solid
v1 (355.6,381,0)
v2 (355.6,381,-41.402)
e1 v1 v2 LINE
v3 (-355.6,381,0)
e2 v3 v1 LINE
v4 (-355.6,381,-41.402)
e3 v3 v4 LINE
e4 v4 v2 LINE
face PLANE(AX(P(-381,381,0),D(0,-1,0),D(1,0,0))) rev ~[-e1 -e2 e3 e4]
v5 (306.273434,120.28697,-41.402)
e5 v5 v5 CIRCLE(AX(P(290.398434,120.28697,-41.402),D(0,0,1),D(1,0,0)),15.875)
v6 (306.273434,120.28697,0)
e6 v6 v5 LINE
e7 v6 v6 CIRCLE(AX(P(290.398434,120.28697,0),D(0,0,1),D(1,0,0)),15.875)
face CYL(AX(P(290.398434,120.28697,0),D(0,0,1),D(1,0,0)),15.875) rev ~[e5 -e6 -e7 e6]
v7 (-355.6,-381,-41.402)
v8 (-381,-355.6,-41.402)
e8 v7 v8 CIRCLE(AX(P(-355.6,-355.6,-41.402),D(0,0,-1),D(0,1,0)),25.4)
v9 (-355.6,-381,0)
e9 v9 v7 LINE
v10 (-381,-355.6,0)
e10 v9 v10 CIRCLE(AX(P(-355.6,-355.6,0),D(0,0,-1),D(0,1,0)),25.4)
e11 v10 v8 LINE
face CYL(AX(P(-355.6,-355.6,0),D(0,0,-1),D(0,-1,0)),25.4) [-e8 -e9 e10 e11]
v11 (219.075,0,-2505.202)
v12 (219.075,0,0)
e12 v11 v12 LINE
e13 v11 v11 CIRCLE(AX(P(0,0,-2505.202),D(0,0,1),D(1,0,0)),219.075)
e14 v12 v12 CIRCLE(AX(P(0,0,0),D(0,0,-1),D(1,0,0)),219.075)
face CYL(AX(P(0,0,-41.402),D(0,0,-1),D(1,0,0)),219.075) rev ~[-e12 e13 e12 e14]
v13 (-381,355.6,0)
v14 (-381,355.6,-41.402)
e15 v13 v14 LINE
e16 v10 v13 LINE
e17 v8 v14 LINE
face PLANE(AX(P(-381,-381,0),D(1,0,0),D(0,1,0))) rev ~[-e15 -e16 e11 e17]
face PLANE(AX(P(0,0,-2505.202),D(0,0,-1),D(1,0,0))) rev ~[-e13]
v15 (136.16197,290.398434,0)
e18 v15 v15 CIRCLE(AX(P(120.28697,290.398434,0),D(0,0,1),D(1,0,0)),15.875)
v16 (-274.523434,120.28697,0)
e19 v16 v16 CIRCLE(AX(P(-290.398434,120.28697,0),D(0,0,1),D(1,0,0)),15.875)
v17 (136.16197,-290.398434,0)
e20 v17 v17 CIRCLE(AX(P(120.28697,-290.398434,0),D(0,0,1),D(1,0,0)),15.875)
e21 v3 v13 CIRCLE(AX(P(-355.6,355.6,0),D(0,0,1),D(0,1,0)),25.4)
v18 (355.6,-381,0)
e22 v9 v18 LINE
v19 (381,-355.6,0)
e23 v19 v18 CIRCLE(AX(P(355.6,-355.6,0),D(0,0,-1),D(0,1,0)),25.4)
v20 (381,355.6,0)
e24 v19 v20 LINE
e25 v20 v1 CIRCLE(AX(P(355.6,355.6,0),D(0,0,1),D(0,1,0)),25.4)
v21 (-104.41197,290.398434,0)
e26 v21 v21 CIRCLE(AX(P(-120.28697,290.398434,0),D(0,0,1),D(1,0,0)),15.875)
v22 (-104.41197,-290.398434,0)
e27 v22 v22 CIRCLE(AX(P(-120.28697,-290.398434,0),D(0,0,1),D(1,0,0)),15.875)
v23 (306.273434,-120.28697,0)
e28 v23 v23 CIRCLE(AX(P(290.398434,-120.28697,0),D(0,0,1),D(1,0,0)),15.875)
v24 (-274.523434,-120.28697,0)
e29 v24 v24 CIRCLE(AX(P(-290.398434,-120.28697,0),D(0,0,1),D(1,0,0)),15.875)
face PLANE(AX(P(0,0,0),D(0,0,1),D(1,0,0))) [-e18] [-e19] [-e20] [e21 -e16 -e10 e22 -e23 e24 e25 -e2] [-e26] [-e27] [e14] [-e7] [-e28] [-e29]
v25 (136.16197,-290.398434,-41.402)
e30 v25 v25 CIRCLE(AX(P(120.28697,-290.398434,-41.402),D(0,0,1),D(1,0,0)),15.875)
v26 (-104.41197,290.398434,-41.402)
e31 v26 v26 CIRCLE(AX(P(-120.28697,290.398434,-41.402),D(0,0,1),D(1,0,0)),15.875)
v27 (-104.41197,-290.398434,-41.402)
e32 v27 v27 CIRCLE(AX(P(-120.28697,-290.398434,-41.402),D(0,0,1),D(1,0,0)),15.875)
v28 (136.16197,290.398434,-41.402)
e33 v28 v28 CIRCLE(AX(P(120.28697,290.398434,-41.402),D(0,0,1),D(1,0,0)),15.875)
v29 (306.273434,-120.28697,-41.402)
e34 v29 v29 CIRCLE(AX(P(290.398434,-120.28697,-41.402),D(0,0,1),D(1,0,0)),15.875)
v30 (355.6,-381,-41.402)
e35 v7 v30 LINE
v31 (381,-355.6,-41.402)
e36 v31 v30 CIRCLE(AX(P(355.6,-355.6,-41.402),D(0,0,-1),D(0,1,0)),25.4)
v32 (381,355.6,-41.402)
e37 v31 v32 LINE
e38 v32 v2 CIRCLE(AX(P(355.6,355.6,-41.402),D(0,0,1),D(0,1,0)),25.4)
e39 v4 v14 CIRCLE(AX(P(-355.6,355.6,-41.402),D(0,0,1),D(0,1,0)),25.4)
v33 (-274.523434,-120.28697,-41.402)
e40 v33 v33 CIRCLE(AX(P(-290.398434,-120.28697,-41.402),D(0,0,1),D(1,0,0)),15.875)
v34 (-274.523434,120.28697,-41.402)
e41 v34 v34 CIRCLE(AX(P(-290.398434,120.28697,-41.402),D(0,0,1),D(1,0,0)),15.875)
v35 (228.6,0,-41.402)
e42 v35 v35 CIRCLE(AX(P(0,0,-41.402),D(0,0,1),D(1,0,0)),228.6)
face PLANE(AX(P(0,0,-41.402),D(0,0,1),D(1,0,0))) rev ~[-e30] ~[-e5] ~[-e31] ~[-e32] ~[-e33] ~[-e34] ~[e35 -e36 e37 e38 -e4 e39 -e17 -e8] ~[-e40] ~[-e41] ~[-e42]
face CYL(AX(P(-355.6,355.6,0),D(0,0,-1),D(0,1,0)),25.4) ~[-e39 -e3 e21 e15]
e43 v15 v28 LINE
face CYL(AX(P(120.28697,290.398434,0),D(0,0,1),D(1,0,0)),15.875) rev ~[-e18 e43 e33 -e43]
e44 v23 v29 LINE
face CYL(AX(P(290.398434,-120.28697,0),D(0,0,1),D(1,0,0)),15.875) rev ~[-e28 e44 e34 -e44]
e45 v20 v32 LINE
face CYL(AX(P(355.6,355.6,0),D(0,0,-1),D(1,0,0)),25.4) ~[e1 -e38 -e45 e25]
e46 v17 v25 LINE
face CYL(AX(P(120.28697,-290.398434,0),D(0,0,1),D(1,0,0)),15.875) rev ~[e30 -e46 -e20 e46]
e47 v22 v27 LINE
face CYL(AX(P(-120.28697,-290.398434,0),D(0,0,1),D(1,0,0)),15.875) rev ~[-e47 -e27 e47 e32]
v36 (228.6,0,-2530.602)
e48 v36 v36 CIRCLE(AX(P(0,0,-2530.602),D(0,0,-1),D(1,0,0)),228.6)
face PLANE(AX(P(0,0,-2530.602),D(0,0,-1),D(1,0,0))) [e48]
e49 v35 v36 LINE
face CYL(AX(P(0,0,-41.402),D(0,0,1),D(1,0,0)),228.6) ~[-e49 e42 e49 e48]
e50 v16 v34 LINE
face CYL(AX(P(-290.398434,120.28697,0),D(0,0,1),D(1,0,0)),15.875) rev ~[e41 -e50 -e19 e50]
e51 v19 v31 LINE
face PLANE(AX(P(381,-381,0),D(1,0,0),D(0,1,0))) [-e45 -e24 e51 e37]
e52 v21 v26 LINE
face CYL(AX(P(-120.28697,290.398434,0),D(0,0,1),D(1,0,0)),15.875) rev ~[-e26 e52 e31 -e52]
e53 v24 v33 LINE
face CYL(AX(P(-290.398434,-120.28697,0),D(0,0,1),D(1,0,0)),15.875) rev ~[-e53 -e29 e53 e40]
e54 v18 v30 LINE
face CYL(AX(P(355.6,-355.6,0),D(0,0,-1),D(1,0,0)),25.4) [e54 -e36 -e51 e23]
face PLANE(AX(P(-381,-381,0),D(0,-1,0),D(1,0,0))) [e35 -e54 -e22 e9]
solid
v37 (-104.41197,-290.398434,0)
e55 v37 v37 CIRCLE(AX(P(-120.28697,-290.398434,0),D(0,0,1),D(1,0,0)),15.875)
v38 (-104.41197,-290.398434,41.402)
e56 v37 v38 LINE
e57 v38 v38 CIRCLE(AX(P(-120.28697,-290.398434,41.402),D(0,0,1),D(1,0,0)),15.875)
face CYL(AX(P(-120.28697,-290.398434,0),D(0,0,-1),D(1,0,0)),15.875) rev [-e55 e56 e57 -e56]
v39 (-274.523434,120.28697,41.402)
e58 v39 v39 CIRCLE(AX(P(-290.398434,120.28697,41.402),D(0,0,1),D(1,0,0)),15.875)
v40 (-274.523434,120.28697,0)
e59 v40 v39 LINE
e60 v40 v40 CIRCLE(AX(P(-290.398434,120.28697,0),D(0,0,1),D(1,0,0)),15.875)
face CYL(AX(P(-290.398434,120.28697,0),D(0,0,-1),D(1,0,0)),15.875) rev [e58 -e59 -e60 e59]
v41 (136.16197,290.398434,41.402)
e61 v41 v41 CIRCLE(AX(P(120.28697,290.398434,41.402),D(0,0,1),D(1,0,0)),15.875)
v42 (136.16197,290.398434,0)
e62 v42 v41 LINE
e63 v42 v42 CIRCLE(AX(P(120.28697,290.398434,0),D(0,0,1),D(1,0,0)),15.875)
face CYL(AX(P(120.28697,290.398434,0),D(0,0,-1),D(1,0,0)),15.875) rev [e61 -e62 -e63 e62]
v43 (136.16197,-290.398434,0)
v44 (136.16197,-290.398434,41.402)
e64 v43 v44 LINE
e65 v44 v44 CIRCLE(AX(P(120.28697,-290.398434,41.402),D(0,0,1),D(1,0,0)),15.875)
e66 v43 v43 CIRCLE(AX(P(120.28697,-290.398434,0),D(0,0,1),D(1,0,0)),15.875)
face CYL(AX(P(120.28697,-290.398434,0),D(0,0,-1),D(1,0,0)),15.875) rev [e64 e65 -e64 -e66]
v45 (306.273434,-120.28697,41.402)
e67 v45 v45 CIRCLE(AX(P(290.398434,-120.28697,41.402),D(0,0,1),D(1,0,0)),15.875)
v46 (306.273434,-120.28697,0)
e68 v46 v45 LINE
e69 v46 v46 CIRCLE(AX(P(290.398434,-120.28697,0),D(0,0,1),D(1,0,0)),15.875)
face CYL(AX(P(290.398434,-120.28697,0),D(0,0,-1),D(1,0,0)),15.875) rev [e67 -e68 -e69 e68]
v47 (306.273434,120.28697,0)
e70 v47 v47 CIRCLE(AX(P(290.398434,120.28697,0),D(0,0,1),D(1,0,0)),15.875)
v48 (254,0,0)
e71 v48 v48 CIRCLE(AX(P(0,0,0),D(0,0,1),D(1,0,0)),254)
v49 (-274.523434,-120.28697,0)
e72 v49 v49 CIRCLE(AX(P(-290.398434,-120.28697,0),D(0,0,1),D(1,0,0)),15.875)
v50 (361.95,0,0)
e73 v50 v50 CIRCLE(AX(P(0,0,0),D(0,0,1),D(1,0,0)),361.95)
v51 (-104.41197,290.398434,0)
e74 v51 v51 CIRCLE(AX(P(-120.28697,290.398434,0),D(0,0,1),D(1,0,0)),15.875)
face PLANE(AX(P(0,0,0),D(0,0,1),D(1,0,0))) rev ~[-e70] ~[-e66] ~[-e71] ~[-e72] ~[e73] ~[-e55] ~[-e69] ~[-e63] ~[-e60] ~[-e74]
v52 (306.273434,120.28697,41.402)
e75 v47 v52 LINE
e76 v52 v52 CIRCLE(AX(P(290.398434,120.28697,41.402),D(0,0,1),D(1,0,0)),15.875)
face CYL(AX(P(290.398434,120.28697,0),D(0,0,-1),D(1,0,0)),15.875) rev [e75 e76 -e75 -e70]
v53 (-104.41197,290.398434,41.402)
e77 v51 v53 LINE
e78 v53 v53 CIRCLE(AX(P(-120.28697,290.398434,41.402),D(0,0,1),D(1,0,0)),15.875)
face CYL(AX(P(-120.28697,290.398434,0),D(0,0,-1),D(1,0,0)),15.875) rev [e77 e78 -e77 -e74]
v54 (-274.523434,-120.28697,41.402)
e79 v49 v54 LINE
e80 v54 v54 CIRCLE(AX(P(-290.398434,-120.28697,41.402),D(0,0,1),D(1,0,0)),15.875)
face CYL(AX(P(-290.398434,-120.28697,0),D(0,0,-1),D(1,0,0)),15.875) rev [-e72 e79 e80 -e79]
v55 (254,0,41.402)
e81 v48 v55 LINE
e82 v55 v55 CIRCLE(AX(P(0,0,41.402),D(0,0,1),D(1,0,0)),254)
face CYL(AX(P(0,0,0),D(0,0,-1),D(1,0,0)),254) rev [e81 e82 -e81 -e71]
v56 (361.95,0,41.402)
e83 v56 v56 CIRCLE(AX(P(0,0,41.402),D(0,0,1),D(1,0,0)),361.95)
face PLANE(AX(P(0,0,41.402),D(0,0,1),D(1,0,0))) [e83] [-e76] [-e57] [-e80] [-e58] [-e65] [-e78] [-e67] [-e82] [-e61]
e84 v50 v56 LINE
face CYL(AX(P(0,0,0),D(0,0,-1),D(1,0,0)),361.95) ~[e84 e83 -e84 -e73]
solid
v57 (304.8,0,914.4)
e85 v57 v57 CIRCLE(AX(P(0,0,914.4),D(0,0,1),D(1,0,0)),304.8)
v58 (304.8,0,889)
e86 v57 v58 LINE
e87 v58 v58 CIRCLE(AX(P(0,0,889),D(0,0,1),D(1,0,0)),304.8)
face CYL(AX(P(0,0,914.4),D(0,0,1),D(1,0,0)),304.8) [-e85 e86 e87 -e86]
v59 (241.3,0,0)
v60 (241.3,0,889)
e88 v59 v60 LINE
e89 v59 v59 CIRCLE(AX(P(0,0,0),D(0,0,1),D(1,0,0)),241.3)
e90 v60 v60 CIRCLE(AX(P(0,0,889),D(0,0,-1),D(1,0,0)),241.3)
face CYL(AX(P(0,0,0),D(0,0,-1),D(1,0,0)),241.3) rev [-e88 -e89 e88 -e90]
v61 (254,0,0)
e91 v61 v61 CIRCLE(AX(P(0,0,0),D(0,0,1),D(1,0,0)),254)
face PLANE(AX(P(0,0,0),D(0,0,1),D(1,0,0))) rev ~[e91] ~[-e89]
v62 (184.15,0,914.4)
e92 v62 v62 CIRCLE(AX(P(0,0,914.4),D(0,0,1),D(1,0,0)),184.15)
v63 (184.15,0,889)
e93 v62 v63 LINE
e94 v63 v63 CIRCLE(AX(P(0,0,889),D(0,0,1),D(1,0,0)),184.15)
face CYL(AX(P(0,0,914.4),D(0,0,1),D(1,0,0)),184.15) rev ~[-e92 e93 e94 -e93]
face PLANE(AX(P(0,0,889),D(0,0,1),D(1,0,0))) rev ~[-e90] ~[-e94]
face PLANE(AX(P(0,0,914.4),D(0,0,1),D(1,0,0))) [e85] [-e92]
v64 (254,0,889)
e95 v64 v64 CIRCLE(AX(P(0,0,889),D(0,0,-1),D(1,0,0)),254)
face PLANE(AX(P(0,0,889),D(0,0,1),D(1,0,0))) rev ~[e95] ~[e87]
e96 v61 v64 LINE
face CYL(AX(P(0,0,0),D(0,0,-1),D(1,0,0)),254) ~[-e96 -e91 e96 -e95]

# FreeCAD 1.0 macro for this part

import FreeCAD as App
import Part
import Sketcher

V = App.Vector
Q = App.Units.Quantity


def edges_at(feature, points):
    """Names of the edges that pass closest to the given points."""
    edges = feature.Shape.Edges
    near = lambda p: min(range(len(edges)), key=lambda i: edges[i].distToShape(Part.Vertex(*p))[0])
    return sorted({f"Edge{near(p) + 1}" for p in points})

doc = App.newDocument("Part")
body = doc.addObject("PartDesign::Body", "Body")

# Sketch on XY plane
sketch1 = body.newObject("Sketcher::SketchObject", "Sketch")
sketch1.AttachmentSupport = (doc.getObject("XY_Plane"), [""])
sketch1.MapMode = "FlatFace"
sketch1.addGeometry([
    Part.LineSegment(V(-381, 381, 0), V(-381, -381, 0)),  # 0
    Part.LineSegment(V(-381, -381, 0), V(381, -381, 0)),  # 1
    Part.LineSegment(V(381, -381, 0), V(381, 381, 0)),  # 2
    Part.LineSegment(V(381, 381, 0), V(-381, 381, 0)),  # 3
    Part.Circle(V(-120.28697, -290.398434, 0), V(0, 0, 1), 15.875),  # 4
    Part.Circle(V(-290.398434, -120.28697, 0), V(0, 0, 1), 15.875),  # 5
    Part.Circle(V(120.28697, -290.398434, 0), V(0, 0, 1), 15.875),  # 6
    Part.Circle(V(290.398434, -120.28697, 0), V(0, 0, 1), 15.875),  # 7
    Part.Circle(V(-290.398434, 120.28697, 0), V(0, 0, 1), 15.875),  # 8
    Part.Circle(V(-120.28697, 290.398434, 0), V(0, 0, 1), 15.875),  # 9
    Part.Circle(V(0, 0, 0), V(0, 0, 1), 228.6),  # 10
    Part.Circle(V(290.398434, 120.28697, 0), V(0, 0, 1), 15.875),  # 11
    Part.Circle(V(120.28697, 290.398434, 0), V(0, 0, 1), 15.875),  # 12
], False)
sketch1.addConstraint([
    Sketcher.Constraint("Coincident", 0, 2, 1, 1),
    Sketcher.Constraint("Coincident", 1, 2, 2, 1),
    Sketcher.Constraint("Coincident", 2, 2, 3, 1),
    Sketcher.Constraint("Coincident", 3, 2, 0, 1),
    Sketcher.Constraint("Vertical", 0),
    Sketcher.Constraint("Horizontal", 1),
    Sketcher.Constraint("Vertical", 2),
    Sketcher.Constraint("Horizontal", 3),
    Sketcher.Constraint("Coincident", 10, 3, -1, 1),
    Sketcher.Constraint("Equal", 4, 5),
    Sketcher.Constraint("Equal", 5, 6),
    Sketcher.Constraint("Equal", 6, 7),
    Sketcher.Constraint("Equal", 7, 8),
    Sketcher.Constraint("Equal", 8, 9),
    Sketcher.Constraint("Equal", 9, 11),
    Sketcher.Constraint("Equal", 11, 12),
    Sketcher.Constraint("Symmetric", 7, 3, 8, 3, -1, 1),
    Sketcher.Constraint("Symmetric", 6, 3, 9, 3, -1, 1),
    Sketcher.Constraint("Symmetric", 5, 3, 11, 3, -1, 1),
    Sketcher.Constraint("Symmetric", 4, 3, 12, 3, -1, 1),
    Sketcher.Constraint("Symmetric", 0, 2, 2, 2, -1, 1),
    Sketcher.Constraint("Symmetric", 4, 3, 6, 3, -2),
    Sketcher.Constraint("Symmetric", 5, 3, 7, 3, -2),
    Sketcher.Constraint("Equal", 3, 0),
    Sketcher.Constraint("Diameter", 10, Q("18 in")),
    Sketcher.Constraint("Diameter", 4, Q("1.25 in")),
    Sketcher.Constraint("DistanceX", 1, 1, 1, 2, Q("30 in")),
    Sketcher.Constraint("DistanceX", 4, 3, -1, 1, Q("120.28697 mm")),
    Sketcher.Constraint("DistanceY", 5, 3, -1, 1, Q("120.28697 mm")),
    Sketcher.Constraint("DistanceX", 5, 3, 7, 3, Q("580.796868 mm")),
    Sketcher.Constraint("DistanceY", 4, 3, 9, 3, Q("580.796868 mm")),
])
pad1 = body.newObject("PartDesign::Pad", "Pad")
pad1.Profile = sketch1
pad1.Length = Q("1.63 in")
pad1.Reversed = True

# Sketch on XY plane
sketch2 = body.newObject("Sketcher::SketchObject", "Sketch001")
sketch2.AttachmentSupport = (doc.getObject("XY_Plane"), [""])
sketch2.MapMode = "FlatFace"
sketch2.AttachmentOffset = App.Placement(V(0, 0, -1.63 * 25.4), App.Rotation())
sketch2.addGeometry([
    Part.Circle(V(0, 0, 0), V(0, 0, 1), 228.6),
    Part.Circle(V(0, 0, 0), V(0, 0, 1), 219.075),
], False)
sketch2.addConstraint([
    Sketcher.Constraint("Coincident", 0, 3, -1, 1),
    Sketcher.Constraint("Coincident", 1, 3, -1, 1),
    Sketcher.Constraint("Diameter", 0, Q("18 in")),
    Sketcher.Constraint("Diameter", 1, Q("17.25 in")),
])
pad2 = body.newObject("PartDesign::Pad", "Pad001")
pad2.Profile = sketch2
pad2.Type = "TwoLengths"
pad2.Length = Q("98 in")
pad2.Length2 = Q("1.63 in")
pad2.Reversed = True

# Sketch on XY plane
sketch3 = body.newObject("Sketcher::SketchObject", "Sketch002")
sketch3.AttachmentSupport = (doc.getObject("XY_Plane"), [""])
sketch3.MapMode = "FlatFace"
sketch3.AttachmentOffset = App.Placement(V(0, 0, -99.63 * 25.4), App.Rotation())
sketch3.addGeometry(Part.Circle(V(0, 0, 0), V(0, 0, 1), 228.6), False)
sketch3.addConstraint([
    Sketcher.Constraint("Coincident", 0, 3, -1, 1),
    Sketcher.Constraint("Diameter", 0, Q("18 in")),
])
pad3 = body.newObject("PartDesign::Pad", "Pad002")
pad3.Profile = sketch3
pad3.Length = Q("1 in")
doc.recompute()

fillet = body.newObject("PartDesign::Fillet", "Fillet")
fillet.Base = (pad3, edges_at(pad3, [
    (381, -381, -20.701),
    (381, 381, -20.701),
    (-381, -381, -20.701),
    (-381, 381, -20.701),
]))
fillet.Radius = Q("1 in")
body2 = doc.addObject("PartDesign::Body", "Body001")

# Sketch on XY plane
sketch4 = body2.newObject("Sketcher::SketchObject", "Sketch003")
sketch4.AttachmentSupport = (doc.getObject("XY_Plane001"), [""])
sketch4.MapMode = "FlatFace"
sketch4.addGeometry([
    Part.Circle(V(0, 0, 0), V(0, 0, 1), 361.95),  # 0
    Part.Circle(V(-120.28697, -290.398434, 0), V(0, 0, 1), 15.875),  # 1
    Part.Circle(V(-290.398434, -120.28697, 0), V(0, 0, 1), 15.875),  # 2
    Part.Circle(V(120.28697, -290.398434, 0), V(0, 0, 1), 15.875),  # 3
    Part.Circle(V(0, 0, 0), V(0, 0, 1), 254),  # 4
    Part.Circle(V(290.398434, -120.28697, 0), V(0, 0, 1), 15.875),  # 5
    Part.Circle(V(-290.398434, 120.28697, 0), V(0, 0, 1), 15.875),  # 6
    Part.Circle(V(-120.28697, 290.398434, 0), V(0, 0, 1), 15.875),  # 7
    Part.Circle(V(290.398434, 120.28697, 0), V(0, 0, 1), 15.875),  # 8
    Part.Circle(V(120.28697, 290.398434, 0), V(0, 0, 1), 15.875),  # 9
], False)
sketch4.addConstraint([
    Sketcher.Constraint("Coincident", 0, 3, -1, 1),
    Sketcher.Constraint("Coincident", 4, 3, -1, 1),
    Sketcher.Constraint("Equal", 1, 2),
    Sketcher.Constraint("Equal", 2, 3),
    Sketcher.Constraint("Equal", 3, 5),
    Sketcher.Constraint("Equal", 5, 6),
    Sketcher.Constraint("Equal", 6, 7),
    Sketcher.Constraint("Equal", 7, 8),
    Sketcher.Constraint("Equal", 8, 9),
    Sketcher.Constraint("Symmetric", 5, 3, 6, 3, -1, 1),
    Sketcher.Constraint("Symmetric", 3, 3, 7, 3, -1, 1),
    Sketcher.Constraint("Symmetric", 2, 3, 8, 3, -1, 1),
    Sketcher.Constraint("Symmetric", 1, 3, 9, 3, -1, 1),
    Sketcher.Constraint("Symmetric", 1, 3, 3, 3, -2),
    Sketcher.Constraint("Symmetric", 2, 3, 5, 3, -2),
    Sketcher.Constraint("Diameter", 4, Q("20 in")),
    Sketcher.Constraint("Diameter", 0, Q("28.5 in")),
    Sketcher.Constraint("Diameter", 1, Q("1.25 in")),
    Sketcher.Constraint("DistanceX", 1, 3, -1, 1, Q("120.28697 mm")),
    Sketcher.Constraint("DistanceY", 2, 3, -1, 1, Q("120.28697 mm")),
    Sketcher.Constraint("DistanceX", 2, 3, 5, 3, Q("580.796868 mm")),
    Sketcher.Constraint("DistanceY", 1, 3, 7, 3, Q("580.796868 mm")),
])
pad4 = body2.newObject("PartDesign::Pad", "Pad003")
pad4.Profile = sketch4
pad4.Length = Q("1.63 in")
body3 = doc.addObject("PartDesign::Body", "Body002")

# Sketch on XY plane
sketch5 = body3.newObject("Sketcher::SketchObject", "Sketch004")
sketch5.AttachmentSupport = (doc.getObject("XY_Plane002"), [""])
sketch5.MapMode = "FlatFace"
sketch5.addGeometry([
    Part.Circle(V(0, 0, 0), V(0, 0, 1), 254),
    Part.Circle(V(0, 0, 0), V(0, 0, 1), 241.3),
], False)
sketch5.addConstraint([
    Sketcher.Constraint("Coincident", 0, 3, -1, 1),
    Sketcher.Constraint("Coincident", 1, 3, -1, 1),
    Sketcher.Constraint("Diameter", 0, Q("20 in")),
    Sketcher.Constraint("Diameter", 1, Q("19 in")),
])
pad5 = body3.newObject("PartDesign::Pad", "Pad004")
pad5.Profile = sketch5
pad5.Length = Q("36 in")

# Sketch on XY plane
sketch6 = body3.newObject("Sketcher::SketchObject", "Sketch005")
sketch6.AttachmentSupport = (doc.getObject("XY_Plane002"), [""])
sketch6.MapMode = "FlatFace"
sketch6.AttachmentOffset = App.Placement(V(0, 0, 36 * 25.4), App.Rotation())
sketch6.addGeometry([
    Part.Circle(V(0, 0, 0), V(0, 0, 1), 304.8),
    Part.Circle(V(0, 0, 0), V(0, 0, 1), 184.15),
], False)
sketch6.addConstraint([
    Sketcher.Constraint("Coincident", 0, 3, -1, 1),
    Sketcher.Constraint("Coincident", 1, 3, -1, 1),
    Sketcher.Constraint("Diameter", 0, Q("24 in")),
    Sketcher.Constraint("Diameter", 1, Q("14.5 in")),
])
pad6 = body3.newObject("PartDesign::Pad", "Pad005")
pad6.Profile = sketch6
pad6.Length = Q("1 in")
pad6.Reversed = True

doc.recompute()
